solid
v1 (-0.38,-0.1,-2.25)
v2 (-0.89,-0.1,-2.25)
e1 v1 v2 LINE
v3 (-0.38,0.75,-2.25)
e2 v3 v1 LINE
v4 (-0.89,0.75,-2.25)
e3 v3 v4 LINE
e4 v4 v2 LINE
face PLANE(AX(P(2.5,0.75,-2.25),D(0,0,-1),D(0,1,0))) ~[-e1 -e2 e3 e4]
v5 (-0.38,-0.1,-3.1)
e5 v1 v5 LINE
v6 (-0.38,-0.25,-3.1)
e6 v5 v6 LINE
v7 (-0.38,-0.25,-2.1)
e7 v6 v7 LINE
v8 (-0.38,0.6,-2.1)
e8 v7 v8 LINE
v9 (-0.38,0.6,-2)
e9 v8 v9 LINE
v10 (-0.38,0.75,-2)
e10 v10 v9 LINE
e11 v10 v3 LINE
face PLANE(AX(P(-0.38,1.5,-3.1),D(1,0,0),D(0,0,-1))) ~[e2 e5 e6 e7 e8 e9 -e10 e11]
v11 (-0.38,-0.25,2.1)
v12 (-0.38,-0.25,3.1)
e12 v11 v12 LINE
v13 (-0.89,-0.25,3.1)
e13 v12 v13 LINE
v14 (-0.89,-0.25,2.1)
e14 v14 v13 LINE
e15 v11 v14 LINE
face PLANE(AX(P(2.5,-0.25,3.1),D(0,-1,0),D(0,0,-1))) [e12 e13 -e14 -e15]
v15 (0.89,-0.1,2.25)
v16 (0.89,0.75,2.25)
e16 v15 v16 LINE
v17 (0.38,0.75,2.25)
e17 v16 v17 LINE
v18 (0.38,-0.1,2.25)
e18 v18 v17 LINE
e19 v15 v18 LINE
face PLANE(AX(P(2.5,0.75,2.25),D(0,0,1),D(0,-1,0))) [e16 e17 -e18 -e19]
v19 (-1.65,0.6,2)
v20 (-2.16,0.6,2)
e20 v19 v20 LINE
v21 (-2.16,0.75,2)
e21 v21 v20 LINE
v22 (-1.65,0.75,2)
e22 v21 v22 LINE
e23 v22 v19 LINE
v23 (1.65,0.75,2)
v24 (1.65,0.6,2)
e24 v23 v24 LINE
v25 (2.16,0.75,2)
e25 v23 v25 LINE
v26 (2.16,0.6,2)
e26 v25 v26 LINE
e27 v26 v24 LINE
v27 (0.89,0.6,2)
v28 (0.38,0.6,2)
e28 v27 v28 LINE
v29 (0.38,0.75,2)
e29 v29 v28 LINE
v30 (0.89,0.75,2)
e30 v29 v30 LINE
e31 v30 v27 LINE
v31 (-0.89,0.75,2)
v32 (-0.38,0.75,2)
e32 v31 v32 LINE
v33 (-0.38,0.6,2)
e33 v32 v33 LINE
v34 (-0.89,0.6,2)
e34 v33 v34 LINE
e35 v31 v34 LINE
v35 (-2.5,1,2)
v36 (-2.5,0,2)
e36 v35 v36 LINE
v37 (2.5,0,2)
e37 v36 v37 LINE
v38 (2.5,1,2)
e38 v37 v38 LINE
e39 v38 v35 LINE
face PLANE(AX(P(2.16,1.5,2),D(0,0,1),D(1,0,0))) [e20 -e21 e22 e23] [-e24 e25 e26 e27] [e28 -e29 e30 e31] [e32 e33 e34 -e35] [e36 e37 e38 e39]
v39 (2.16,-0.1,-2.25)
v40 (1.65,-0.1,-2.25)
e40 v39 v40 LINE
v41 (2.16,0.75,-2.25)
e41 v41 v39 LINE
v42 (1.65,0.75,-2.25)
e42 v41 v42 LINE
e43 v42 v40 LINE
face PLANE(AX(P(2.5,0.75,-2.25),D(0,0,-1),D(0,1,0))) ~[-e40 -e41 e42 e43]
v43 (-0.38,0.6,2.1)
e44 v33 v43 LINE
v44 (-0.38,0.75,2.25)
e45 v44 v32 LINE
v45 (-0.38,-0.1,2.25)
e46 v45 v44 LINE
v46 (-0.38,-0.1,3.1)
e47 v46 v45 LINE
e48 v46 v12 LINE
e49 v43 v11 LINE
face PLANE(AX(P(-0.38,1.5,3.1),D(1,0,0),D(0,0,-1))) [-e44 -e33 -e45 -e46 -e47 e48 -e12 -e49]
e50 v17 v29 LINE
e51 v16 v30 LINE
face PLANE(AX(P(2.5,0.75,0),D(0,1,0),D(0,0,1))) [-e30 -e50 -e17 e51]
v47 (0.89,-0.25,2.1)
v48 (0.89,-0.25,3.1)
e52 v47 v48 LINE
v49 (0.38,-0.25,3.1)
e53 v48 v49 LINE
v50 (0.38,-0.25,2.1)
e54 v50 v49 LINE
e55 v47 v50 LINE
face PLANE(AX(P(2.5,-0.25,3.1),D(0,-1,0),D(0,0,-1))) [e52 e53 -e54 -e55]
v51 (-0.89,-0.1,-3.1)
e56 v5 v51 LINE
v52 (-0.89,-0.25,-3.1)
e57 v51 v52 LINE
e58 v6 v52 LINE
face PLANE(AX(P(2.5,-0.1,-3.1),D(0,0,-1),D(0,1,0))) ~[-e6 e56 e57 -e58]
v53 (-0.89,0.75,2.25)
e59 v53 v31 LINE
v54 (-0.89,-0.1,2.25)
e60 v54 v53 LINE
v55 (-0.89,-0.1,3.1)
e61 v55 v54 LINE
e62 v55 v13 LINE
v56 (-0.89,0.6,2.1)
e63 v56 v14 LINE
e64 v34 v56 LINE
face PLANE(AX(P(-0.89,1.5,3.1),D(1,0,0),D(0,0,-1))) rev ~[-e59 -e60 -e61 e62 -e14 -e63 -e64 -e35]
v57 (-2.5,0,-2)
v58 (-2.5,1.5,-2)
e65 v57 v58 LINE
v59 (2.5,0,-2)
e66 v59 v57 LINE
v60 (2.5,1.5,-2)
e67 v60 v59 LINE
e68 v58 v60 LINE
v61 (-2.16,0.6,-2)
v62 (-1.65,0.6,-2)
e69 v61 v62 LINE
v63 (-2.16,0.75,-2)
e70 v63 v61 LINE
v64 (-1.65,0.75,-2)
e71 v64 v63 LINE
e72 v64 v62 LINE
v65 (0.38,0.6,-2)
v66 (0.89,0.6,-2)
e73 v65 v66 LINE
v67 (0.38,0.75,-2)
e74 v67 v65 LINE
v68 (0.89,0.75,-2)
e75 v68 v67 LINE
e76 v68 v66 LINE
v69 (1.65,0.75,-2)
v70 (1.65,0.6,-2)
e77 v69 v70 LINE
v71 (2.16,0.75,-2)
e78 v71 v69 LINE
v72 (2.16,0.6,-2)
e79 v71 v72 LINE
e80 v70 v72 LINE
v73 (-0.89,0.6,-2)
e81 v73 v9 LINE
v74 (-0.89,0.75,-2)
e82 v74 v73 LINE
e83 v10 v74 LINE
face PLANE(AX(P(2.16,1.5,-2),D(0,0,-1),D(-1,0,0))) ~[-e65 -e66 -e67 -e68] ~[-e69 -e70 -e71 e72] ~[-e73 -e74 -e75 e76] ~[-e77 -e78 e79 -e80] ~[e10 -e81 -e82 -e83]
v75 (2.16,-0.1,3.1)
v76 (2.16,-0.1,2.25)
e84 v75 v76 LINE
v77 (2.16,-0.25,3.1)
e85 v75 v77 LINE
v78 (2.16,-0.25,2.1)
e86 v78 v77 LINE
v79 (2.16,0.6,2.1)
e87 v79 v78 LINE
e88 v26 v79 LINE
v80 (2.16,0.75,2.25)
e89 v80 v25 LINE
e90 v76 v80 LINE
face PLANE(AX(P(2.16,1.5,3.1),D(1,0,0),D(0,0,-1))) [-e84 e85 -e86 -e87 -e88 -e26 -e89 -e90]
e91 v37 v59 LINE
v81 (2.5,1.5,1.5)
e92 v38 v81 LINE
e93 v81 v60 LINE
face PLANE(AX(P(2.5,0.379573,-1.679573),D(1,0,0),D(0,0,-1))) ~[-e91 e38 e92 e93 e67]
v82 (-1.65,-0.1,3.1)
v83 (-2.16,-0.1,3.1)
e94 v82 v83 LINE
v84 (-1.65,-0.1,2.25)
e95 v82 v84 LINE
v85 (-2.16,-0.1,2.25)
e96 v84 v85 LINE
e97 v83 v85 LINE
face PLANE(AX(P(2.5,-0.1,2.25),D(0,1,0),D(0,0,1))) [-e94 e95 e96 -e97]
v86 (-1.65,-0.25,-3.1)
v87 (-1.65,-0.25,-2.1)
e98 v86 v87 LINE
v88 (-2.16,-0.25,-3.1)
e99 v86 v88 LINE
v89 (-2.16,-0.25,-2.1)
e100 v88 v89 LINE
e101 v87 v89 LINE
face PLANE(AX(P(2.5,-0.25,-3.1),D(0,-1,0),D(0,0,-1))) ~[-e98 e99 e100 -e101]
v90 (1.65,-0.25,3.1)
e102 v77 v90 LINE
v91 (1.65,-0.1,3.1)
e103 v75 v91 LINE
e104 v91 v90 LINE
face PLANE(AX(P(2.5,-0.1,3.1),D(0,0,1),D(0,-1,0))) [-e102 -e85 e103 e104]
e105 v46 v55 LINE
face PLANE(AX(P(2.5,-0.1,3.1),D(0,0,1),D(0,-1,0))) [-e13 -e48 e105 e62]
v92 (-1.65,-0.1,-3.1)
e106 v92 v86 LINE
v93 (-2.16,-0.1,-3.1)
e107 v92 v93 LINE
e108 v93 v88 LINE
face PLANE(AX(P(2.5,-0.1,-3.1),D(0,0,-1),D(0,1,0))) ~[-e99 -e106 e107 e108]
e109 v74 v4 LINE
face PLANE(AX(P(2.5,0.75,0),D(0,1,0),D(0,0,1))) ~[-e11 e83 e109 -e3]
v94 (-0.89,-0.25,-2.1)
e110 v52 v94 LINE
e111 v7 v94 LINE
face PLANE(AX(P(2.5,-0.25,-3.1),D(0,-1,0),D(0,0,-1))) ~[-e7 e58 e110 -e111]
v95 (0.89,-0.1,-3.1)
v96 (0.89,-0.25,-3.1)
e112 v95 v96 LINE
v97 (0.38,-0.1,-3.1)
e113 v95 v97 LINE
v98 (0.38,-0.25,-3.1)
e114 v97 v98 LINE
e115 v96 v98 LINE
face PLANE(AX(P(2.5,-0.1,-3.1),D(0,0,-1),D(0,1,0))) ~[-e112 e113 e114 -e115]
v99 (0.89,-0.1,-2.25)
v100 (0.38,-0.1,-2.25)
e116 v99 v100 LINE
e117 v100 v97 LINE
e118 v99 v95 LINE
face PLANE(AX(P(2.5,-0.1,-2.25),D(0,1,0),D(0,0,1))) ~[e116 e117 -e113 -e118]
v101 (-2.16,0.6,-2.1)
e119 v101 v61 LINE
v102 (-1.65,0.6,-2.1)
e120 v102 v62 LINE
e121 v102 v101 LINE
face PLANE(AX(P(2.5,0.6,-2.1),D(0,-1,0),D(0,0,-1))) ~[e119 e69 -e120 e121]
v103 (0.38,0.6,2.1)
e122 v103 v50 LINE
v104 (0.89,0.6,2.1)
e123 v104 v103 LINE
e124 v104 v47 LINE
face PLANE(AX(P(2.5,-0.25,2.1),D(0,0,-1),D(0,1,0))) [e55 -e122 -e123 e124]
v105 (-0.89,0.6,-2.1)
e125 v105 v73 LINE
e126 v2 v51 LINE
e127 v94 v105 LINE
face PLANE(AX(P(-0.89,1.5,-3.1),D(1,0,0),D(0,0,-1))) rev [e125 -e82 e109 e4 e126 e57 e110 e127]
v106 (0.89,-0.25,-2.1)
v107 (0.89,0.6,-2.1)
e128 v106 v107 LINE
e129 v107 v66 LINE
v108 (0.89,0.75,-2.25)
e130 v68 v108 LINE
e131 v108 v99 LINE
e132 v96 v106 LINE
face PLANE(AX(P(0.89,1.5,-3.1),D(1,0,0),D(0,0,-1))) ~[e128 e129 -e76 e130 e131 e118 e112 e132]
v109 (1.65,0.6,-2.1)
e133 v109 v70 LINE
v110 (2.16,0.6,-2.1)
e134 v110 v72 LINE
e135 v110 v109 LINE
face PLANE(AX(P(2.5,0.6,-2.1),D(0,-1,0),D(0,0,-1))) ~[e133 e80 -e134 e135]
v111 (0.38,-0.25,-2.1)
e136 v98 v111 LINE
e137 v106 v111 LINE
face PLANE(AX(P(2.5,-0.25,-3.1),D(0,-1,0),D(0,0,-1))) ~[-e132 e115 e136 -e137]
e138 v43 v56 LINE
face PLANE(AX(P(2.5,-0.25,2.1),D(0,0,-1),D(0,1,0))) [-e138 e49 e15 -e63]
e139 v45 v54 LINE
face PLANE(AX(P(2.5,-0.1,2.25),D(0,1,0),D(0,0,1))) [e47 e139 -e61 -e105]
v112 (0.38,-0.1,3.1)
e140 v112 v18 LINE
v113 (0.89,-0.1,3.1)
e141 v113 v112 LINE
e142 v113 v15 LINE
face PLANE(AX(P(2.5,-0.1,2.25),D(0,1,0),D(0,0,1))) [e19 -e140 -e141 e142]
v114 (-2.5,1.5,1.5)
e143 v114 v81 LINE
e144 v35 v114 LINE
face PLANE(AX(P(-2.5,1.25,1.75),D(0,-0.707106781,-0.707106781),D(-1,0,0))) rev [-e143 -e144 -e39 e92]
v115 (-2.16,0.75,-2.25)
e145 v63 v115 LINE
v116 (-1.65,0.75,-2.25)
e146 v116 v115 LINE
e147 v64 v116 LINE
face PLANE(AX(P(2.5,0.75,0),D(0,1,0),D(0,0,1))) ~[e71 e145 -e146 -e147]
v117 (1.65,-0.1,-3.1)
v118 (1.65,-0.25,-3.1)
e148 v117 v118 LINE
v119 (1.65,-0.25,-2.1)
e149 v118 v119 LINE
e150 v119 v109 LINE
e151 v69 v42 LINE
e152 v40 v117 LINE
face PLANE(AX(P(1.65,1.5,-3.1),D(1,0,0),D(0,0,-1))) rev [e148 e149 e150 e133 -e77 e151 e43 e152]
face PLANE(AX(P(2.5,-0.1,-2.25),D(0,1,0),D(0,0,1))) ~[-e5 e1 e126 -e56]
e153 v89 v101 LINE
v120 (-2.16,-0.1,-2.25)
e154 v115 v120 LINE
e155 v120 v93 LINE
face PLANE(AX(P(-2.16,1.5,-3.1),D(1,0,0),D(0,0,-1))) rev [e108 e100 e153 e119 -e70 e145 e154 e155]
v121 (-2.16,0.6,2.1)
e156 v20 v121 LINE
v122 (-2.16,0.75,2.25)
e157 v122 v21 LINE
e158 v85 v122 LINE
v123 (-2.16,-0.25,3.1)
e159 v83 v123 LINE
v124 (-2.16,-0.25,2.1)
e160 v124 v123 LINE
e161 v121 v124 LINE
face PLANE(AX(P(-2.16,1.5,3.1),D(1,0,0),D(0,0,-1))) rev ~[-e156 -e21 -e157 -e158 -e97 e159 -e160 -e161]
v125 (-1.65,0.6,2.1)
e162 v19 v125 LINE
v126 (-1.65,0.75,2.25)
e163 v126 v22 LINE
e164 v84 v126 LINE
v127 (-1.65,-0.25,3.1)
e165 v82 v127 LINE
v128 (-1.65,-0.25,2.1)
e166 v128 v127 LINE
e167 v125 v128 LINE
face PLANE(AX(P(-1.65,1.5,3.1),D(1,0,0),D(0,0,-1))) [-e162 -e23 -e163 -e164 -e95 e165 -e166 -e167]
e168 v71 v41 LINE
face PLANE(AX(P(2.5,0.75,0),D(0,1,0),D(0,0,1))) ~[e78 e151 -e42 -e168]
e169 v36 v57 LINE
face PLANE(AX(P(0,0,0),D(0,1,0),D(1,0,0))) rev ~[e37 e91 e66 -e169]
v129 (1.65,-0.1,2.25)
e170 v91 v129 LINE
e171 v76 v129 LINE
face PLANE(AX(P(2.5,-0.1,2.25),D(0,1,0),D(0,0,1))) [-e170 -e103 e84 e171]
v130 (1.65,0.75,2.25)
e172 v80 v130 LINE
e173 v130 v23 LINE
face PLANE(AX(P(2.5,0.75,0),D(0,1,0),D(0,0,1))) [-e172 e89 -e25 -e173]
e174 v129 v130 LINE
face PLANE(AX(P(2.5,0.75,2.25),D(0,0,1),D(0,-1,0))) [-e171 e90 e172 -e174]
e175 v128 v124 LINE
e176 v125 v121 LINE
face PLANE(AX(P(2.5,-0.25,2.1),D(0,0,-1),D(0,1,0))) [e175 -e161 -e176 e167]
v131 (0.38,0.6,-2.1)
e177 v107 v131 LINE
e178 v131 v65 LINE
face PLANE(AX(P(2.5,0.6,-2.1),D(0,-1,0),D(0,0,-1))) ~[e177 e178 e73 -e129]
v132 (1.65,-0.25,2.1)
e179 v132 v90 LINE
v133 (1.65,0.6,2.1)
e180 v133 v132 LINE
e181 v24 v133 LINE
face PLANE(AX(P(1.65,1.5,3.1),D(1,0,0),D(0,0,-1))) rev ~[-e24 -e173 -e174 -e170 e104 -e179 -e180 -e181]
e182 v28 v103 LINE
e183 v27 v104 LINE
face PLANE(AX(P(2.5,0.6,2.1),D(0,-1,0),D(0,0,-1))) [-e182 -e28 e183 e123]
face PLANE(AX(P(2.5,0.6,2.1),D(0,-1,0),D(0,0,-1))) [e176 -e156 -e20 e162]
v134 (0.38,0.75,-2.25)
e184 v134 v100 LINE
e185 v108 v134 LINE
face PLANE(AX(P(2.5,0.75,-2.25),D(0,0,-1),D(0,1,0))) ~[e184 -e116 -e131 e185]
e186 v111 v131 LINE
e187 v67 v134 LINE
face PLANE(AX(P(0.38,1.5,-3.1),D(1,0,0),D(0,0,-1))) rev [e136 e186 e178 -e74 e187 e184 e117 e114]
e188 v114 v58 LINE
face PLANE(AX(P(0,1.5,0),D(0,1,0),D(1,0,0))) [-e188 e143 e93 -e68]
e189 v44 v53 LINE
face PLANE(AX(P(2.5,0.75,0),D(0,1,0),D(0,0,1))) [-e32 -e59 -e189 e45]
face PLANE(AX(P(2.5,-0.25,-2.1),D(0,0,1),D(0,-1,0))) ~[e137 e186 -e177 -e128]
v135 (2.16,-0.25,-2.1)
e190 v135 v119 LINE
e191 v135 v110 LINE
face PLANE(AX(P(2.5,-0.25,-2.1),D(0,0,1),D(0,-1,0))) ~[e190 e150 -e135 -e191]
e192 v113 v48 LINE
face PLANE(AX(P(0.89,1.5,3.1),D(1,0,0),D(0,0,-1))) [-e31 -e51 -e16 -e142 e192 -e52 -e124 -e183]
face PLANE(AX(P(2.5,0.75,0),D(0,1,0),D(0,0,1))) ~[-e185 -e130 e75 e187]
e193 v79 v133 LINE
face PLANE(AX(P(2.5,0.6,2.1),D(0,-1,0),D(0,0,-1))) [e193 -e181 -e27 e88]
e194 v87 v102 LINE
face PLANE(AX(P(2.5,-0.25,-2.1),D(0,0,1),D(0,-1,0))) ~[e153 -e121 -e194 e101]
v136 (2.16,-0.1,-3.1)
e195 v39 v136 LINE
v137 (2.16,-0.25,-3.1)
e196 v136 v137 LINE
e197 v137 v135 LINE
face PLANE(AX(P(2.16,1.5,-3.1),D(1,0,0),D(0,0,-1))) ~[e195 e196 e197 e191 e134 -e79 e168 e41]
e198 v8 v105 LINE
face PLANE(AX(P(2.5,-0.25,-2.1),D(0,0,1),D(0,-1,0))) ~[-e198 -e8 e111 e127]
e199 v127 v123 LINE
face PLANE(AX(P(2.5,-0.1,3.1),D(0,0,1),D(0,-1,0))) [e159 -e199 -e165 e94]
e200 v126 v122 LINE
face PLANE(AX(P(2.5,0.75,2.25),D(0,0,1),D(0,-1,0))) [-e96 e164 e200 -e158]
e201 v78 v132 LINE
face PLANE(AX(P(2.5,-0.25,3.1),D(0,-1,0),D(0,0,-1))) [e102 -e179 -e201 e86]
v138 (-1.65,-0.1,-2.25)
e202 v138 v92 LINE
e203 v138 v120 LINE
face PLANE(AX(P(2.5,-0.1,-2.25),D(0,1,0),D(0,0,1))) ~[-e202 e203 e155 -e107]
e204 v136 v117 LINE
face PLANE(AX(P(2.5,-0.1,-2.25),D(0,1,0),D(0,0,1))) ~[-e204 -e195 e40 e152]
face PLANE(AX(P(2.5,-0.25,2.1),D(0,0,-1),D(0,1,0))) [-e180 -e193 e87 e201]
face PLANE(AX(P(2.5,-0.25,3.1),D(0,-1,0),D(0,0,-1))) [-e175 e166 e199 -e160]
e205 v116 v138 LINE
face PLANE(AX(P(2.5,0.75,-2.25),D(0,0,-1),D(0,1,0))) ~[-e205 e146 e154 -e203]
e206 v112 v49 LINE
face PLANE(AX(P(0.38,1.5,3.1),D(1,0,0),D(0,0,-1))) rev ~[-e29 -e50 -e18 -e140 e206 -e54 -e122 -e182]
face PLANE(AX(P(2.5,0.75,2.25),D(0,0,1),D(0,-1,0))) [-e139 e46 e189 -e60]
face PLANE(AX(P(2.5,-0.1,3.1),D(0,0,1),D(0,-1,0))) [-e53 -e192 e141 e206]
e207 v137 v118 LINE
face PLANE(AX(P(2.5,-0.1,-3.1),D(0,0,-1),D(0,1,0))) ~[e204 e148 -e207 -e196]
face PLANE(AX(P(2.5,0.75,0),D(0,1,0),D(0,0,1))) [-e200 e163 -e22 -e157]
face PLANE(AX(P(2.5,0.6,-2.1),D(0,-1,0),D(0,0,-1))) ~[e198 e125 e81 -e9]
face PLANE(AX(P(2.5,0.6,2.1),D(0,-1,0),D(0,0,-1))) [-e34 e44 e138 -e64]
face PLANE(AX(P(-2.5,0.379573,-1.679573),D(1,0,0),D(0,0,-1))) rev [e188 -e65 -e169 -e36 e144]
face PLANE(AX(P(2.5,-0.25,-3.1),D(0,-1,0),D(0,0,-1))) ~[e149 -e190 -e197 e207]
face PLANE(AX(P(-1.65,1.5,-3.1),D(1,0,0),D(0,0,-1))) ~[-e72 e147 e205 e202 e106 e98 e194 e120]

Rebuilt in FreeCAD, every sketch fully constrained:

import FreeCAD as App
import Part
import Sketcher
from FreeCAD import Vector
Q = App.Units.Quantity


def edges_at(feature, points):
    """Names of the edges that pass closest to the given points."""
    edges = feature.Shape.Edges
    near = lambda p: min(range(len(edges)), key=lambda i: edges[i].distToShape(Part.Vertex(*p))[0])
    return sorted({f"Edge{near(p) + 1}" for p in points})


def add_polygon(sketch, points):
    """Adds a closed chain of lines whose ends are joined by coincident constraints."""
    first, n = sketch.GeometryCount, len(points)
    for a, b in zip(points, points[1:] + points[:1]):
        sketch.addGeometry(Part.LineSegment(App.Vector(*a, 0), App.Vector(*b, 0)), False)
    for i in range(n):
        sketch.addConstraint(Sketcher.Constraint("Coincident", first + i, 2, first + (i + 1) % n, 1))

doc = App.newDocument("Part")
params = doc.addObject("Spreadsheet::Sheet", "Params")
for row, (alias, value) in enumerate([
    ("sketch1_width", "5 mm"),
    ("sketch1_height", "4 mm"),
    ("pad1_length", "1.5 mm"),
    ("chamfer_size", "0.5 mm"),
    ("sketch2_height", "1 mm"),
    ("sketch2_height2", "2.1 mm"),
    ("sketch2_width", "0.85 mm"),
    ("sketch3_height", "1.1 mm"),
    ("sketch3_width", "0.34 mm"),
    ("sketch3_width2", "0.76 mm"),
], start=1):
    params.set(f"A{row}", alias)
    params.set(f"B{row}", "=" + value)
    params.setAlias(f"B{row}", alias)

body = doc.addObject("PartDesign::Body", "Body")

# Sketch on XZ plane
sketch1 = doc.addObject("Sketcher::SketchObject", "Sketch")
body.addObject(sketch1)
sketch1.AttachmentSupport = (doc.XZ_Plane, [""])
sketch1.MapMode = "FlatFace"
add_polygon(sketch1, [(-2.5, -2), (-2.5, 2), (2.5, 2), (2.5, -2)])  # lines 0-3
sketch1.addConstraint([
    Sketcher.Constraint("Vertical", 0),
    Sketcher.Constraint("Horizontal", 1),
    Sketcher.Constraint("Vertical", 2),
    Sketcher.Constraint("Horizontal", 3),
    Sketcher.Constraint("Symmetric", 0, 2, 2, 2, -1, 1),
    Sketcher.Constraint("DistanceX", 1, 1, 1, 2, Q("5 mm")),
    Sketcher.Constraint("DistanceY", 0, 1, 0, 2, Q("4 mm")),
])
sketch1.setExpression("Constraints[9]", "Params.sketch1_width")
sketch1.setExpression("Constraints[10]", "Params.sketch1_height")
pad1 = doc.addObject("PartDesign::Pad", "Pad")
body.addObject(pad1)
pad1.Profile = sketch1
pad1.setExpression("Length", "Params.pad1_length")
pad1.Reversed = True
doc.recompute()

chamfer = doc.addObject("PartDesign::Chamfer", "Chamfer")
body.addObject(chamfer)
chamfer.Base = (pad1, edges_at(pad1, [(0, 1.5, 2)]))
chamfer.setExpression("Size", "Params.chamfer_size")

# Sketch on YZ plane
sketch2 = doc.addObject("Sketcher::SketchObject", "Sketch001")
body.addObject(sketch2)
sketch2.AttachmentSupport = (doc.YZ_Plane, [""])
sketch2.MapMode = "FlatFace"
sketch2.AttachmentOffset = App.Placement(Vector(0, 0, 2.5), App.Rotation())
add_polygon(sketch2, [(0.75, 2.25), (-0.1, 2.25), (-0.1, 3.1), (-0.25, 3.1), (-0.25, 2.1), (0.6, 2.1), (0.6, 0), (0.75, 0)])  # lines 0-7
sketch2.addConstraint([
    Sketcher.Constraint("Horizontal", 0),
    Sketcher.Constraint("Vertical", 1),
    Sketcher.Constraint("Horizontal", 2),
    Sketcher.Constraint("Vertical", 3),
    Sketcher.Constraint("Horizontal", 4),
    Sketcher.Constraint("Vertical", 5),
    Sketcher.Constraint("Horizontal", 6),
    Sketcher.Constraint("Vertical", 7),
    Sketcher.Constraint("PointOnObject", 5, 2, -1),
    Sketcher.Constraint("Equal", 0, 4),
    Sketcher.Constraint("Equal", 4, 1),
    Sketcher.Constraint("DistanceY", 3, 2, 3, 1, Q("1 mm")),
    Sketcher.Constraint("DistanceY", 5, 2, 5, 1, Q("2.1 mm")),
    Sketcher.Constraint("DistanceX", 3, 2, 6, 2, Q("1 mm")),
    Sketcher.Constraint("DistanceX", 0, 2, 0, 1, Q("0.85 mm")),
    Sketcher.Constraint("DistanceX", 0, 2, -1, 1, Q("0.1 mm")),
])
sketch2.setExpression("Constraints[19]", "Params.sketch2_height")
sketch2.setExpression("Constraints[20]", "Params.sketch2_height2")
sketch2.setExpression("Constraints[22]", "Params.sketch2_width")
pad2 = doc.addObject("PartDesign::Pad", "Pad001")
body.addObject(pad2)
pad2.Profile = sketch2
pad2.Type = "UpToLast"
pad2.Reversed = True

# Sketch on XZ plane
sketch3 = doc.addObject("Sketcher::SketchObject", "Sketch002")
body.addObject(sketch3)
sketch3.AttachmentSupport = (doc.XZ_Plane, [""])
sketch3.MapMode = "FlatFace"
sketch3.AttachmentOffset = App.Placement(Vector(0, 0, -1.5), App.Rotation())
add_polygon(sketch3, [(-2.5, 2), (-2.5, 3.1), (-2.16, 3.1), (-2.16, 2)])  # lines 0-3
add_polygon(sketch3, [(-1.65, 2), (-1.65, 3.1), (-0.89, 3.1), (-0.89, 2)])  # lines 4-7
add_polygon(sketch3, [(-0.38, 2), (-0.38, 3.1), (0.38, 3.1), (0.38, 2)])  # lines 8-11
add_polygon(sketch3, [(0.89, 2), (0.89, 3.1), (1.65, 3.1), (1.65, 2)])  # lines 12-15
add_polygon(sketch3, [(2.16, 2), (2.16, 3.1), (2.5, 3.1), (2.5, 2)])  # lines 16-19
sketch3.addConstraint([
    Sketcher.Constraint("Vertical", 0),
    Sketcher.Constraint("Horizontal", 1),
    Sketcher.Constraint("Vertical", 2),
    Sketcher.Constraint("Horizontal", 3),
    Sketcher.Constraint("Vertical", 4),
    Sketcher.Constraint("Horizontal", 5),
    Sketcher.Constraint("Vertical", 6),
    Sketcher.Constraint("Horizontal", 7),
    Sketcher.Constraint("Vertical", 8),
    Sketcher.Constraint("Horizontal", 9),
    Sketcher.Constraint("Vertical", 10),
    Sketcher.Constraint("Horizontal", 11),
    Sketcher.Constraint("Vertical", 12),
    Sketcher.Constraint("Horizontal", 13),
    Sketcher.Constraint("Vertical", 14),
    Sketcher.Constraint("Horizontal", 15),
    Sketcher.Constraint("Vertical", 16),
    Sketcher.Constraint("Horizontal", 17),
    Sketcher.Constraint("Vertical", 18),
    Sketcher.Constraint("Horizontal", 19),
    Sketcher.Constraint("Symmetric", 5, 2, 12, 2, -2),
    Sketcher.Constraint("Symmetric", 7, 2, 14, 2, -2),
    Sketcher.Constraint("Symmetric", 1, 2, 16, 2, -2),
    Sketcher.Constraint("Symmetric", 3, 2, 18, 2, -2),
    Sketcher.Constraint("Horizontal", 1, 2, 4, 2),
    Sketcher.Constraint("Horizontal", 3, 2, 6, 2),
    Sketcher.Constraint("Horizontal", 5, 2, 8, 2),
    Sketcher.Constraint("Horizontal", 7, 2, 10, 2),
    Sketcher.Constraint("Equal", 7, 9),
    Sketcher.Constraint("DistanceY", 0, 1, 0, 2, Q("1.1 mm")),
    Sketcher.Constraint("DistanceY", -1, 1, 2, 2, Q("2 mm")),
    Sketcher.Constraint("DistanceX", 1, 1, 1, 2, Q("0.34 mm")),
    Sketcher.Constraint("DistanceX", 5, 1, 5, 2, Q("0.76 mm")),
    Sketcher.Constraint("DistanceX", 0, 2, -1, 1, Q("2.5 mm")),
    Sketcher.Constraint("DistanceX", 4, 2, -1, 1, Q("1.65 mm")),
    Sketcher.Constraint("DistanceX", 8, 2, -1, 1, Q("0.38 mm")),
])
sketch3.setExpression("Constraints[49]", "Params.sketch3_height")
sketch3.setExpression("Constraints[51]", "Params.sketch3_width")
sketch3.setExpression("Constraints[52]", "Params.sketch3_width2")
pocket1 = doc.addObject("PartDesign::Pocket", "Pocket")
body.addObject(pocket1)
pocket1.Profile = sketch3
pocket1.Type = "ThroughAll"
pocket1.Reversed = True
doc.recompute()

mirrored = doc.addObject("PartDesign::Mirrored", "Mirrored")
body.addObject(mirrored)
mirrored.Originals = [pad2, pocket1]
mirrored.MirrorPlane = (doc.XY_Plane, [""])
body.Tip = mirrored

doc.recompute()
